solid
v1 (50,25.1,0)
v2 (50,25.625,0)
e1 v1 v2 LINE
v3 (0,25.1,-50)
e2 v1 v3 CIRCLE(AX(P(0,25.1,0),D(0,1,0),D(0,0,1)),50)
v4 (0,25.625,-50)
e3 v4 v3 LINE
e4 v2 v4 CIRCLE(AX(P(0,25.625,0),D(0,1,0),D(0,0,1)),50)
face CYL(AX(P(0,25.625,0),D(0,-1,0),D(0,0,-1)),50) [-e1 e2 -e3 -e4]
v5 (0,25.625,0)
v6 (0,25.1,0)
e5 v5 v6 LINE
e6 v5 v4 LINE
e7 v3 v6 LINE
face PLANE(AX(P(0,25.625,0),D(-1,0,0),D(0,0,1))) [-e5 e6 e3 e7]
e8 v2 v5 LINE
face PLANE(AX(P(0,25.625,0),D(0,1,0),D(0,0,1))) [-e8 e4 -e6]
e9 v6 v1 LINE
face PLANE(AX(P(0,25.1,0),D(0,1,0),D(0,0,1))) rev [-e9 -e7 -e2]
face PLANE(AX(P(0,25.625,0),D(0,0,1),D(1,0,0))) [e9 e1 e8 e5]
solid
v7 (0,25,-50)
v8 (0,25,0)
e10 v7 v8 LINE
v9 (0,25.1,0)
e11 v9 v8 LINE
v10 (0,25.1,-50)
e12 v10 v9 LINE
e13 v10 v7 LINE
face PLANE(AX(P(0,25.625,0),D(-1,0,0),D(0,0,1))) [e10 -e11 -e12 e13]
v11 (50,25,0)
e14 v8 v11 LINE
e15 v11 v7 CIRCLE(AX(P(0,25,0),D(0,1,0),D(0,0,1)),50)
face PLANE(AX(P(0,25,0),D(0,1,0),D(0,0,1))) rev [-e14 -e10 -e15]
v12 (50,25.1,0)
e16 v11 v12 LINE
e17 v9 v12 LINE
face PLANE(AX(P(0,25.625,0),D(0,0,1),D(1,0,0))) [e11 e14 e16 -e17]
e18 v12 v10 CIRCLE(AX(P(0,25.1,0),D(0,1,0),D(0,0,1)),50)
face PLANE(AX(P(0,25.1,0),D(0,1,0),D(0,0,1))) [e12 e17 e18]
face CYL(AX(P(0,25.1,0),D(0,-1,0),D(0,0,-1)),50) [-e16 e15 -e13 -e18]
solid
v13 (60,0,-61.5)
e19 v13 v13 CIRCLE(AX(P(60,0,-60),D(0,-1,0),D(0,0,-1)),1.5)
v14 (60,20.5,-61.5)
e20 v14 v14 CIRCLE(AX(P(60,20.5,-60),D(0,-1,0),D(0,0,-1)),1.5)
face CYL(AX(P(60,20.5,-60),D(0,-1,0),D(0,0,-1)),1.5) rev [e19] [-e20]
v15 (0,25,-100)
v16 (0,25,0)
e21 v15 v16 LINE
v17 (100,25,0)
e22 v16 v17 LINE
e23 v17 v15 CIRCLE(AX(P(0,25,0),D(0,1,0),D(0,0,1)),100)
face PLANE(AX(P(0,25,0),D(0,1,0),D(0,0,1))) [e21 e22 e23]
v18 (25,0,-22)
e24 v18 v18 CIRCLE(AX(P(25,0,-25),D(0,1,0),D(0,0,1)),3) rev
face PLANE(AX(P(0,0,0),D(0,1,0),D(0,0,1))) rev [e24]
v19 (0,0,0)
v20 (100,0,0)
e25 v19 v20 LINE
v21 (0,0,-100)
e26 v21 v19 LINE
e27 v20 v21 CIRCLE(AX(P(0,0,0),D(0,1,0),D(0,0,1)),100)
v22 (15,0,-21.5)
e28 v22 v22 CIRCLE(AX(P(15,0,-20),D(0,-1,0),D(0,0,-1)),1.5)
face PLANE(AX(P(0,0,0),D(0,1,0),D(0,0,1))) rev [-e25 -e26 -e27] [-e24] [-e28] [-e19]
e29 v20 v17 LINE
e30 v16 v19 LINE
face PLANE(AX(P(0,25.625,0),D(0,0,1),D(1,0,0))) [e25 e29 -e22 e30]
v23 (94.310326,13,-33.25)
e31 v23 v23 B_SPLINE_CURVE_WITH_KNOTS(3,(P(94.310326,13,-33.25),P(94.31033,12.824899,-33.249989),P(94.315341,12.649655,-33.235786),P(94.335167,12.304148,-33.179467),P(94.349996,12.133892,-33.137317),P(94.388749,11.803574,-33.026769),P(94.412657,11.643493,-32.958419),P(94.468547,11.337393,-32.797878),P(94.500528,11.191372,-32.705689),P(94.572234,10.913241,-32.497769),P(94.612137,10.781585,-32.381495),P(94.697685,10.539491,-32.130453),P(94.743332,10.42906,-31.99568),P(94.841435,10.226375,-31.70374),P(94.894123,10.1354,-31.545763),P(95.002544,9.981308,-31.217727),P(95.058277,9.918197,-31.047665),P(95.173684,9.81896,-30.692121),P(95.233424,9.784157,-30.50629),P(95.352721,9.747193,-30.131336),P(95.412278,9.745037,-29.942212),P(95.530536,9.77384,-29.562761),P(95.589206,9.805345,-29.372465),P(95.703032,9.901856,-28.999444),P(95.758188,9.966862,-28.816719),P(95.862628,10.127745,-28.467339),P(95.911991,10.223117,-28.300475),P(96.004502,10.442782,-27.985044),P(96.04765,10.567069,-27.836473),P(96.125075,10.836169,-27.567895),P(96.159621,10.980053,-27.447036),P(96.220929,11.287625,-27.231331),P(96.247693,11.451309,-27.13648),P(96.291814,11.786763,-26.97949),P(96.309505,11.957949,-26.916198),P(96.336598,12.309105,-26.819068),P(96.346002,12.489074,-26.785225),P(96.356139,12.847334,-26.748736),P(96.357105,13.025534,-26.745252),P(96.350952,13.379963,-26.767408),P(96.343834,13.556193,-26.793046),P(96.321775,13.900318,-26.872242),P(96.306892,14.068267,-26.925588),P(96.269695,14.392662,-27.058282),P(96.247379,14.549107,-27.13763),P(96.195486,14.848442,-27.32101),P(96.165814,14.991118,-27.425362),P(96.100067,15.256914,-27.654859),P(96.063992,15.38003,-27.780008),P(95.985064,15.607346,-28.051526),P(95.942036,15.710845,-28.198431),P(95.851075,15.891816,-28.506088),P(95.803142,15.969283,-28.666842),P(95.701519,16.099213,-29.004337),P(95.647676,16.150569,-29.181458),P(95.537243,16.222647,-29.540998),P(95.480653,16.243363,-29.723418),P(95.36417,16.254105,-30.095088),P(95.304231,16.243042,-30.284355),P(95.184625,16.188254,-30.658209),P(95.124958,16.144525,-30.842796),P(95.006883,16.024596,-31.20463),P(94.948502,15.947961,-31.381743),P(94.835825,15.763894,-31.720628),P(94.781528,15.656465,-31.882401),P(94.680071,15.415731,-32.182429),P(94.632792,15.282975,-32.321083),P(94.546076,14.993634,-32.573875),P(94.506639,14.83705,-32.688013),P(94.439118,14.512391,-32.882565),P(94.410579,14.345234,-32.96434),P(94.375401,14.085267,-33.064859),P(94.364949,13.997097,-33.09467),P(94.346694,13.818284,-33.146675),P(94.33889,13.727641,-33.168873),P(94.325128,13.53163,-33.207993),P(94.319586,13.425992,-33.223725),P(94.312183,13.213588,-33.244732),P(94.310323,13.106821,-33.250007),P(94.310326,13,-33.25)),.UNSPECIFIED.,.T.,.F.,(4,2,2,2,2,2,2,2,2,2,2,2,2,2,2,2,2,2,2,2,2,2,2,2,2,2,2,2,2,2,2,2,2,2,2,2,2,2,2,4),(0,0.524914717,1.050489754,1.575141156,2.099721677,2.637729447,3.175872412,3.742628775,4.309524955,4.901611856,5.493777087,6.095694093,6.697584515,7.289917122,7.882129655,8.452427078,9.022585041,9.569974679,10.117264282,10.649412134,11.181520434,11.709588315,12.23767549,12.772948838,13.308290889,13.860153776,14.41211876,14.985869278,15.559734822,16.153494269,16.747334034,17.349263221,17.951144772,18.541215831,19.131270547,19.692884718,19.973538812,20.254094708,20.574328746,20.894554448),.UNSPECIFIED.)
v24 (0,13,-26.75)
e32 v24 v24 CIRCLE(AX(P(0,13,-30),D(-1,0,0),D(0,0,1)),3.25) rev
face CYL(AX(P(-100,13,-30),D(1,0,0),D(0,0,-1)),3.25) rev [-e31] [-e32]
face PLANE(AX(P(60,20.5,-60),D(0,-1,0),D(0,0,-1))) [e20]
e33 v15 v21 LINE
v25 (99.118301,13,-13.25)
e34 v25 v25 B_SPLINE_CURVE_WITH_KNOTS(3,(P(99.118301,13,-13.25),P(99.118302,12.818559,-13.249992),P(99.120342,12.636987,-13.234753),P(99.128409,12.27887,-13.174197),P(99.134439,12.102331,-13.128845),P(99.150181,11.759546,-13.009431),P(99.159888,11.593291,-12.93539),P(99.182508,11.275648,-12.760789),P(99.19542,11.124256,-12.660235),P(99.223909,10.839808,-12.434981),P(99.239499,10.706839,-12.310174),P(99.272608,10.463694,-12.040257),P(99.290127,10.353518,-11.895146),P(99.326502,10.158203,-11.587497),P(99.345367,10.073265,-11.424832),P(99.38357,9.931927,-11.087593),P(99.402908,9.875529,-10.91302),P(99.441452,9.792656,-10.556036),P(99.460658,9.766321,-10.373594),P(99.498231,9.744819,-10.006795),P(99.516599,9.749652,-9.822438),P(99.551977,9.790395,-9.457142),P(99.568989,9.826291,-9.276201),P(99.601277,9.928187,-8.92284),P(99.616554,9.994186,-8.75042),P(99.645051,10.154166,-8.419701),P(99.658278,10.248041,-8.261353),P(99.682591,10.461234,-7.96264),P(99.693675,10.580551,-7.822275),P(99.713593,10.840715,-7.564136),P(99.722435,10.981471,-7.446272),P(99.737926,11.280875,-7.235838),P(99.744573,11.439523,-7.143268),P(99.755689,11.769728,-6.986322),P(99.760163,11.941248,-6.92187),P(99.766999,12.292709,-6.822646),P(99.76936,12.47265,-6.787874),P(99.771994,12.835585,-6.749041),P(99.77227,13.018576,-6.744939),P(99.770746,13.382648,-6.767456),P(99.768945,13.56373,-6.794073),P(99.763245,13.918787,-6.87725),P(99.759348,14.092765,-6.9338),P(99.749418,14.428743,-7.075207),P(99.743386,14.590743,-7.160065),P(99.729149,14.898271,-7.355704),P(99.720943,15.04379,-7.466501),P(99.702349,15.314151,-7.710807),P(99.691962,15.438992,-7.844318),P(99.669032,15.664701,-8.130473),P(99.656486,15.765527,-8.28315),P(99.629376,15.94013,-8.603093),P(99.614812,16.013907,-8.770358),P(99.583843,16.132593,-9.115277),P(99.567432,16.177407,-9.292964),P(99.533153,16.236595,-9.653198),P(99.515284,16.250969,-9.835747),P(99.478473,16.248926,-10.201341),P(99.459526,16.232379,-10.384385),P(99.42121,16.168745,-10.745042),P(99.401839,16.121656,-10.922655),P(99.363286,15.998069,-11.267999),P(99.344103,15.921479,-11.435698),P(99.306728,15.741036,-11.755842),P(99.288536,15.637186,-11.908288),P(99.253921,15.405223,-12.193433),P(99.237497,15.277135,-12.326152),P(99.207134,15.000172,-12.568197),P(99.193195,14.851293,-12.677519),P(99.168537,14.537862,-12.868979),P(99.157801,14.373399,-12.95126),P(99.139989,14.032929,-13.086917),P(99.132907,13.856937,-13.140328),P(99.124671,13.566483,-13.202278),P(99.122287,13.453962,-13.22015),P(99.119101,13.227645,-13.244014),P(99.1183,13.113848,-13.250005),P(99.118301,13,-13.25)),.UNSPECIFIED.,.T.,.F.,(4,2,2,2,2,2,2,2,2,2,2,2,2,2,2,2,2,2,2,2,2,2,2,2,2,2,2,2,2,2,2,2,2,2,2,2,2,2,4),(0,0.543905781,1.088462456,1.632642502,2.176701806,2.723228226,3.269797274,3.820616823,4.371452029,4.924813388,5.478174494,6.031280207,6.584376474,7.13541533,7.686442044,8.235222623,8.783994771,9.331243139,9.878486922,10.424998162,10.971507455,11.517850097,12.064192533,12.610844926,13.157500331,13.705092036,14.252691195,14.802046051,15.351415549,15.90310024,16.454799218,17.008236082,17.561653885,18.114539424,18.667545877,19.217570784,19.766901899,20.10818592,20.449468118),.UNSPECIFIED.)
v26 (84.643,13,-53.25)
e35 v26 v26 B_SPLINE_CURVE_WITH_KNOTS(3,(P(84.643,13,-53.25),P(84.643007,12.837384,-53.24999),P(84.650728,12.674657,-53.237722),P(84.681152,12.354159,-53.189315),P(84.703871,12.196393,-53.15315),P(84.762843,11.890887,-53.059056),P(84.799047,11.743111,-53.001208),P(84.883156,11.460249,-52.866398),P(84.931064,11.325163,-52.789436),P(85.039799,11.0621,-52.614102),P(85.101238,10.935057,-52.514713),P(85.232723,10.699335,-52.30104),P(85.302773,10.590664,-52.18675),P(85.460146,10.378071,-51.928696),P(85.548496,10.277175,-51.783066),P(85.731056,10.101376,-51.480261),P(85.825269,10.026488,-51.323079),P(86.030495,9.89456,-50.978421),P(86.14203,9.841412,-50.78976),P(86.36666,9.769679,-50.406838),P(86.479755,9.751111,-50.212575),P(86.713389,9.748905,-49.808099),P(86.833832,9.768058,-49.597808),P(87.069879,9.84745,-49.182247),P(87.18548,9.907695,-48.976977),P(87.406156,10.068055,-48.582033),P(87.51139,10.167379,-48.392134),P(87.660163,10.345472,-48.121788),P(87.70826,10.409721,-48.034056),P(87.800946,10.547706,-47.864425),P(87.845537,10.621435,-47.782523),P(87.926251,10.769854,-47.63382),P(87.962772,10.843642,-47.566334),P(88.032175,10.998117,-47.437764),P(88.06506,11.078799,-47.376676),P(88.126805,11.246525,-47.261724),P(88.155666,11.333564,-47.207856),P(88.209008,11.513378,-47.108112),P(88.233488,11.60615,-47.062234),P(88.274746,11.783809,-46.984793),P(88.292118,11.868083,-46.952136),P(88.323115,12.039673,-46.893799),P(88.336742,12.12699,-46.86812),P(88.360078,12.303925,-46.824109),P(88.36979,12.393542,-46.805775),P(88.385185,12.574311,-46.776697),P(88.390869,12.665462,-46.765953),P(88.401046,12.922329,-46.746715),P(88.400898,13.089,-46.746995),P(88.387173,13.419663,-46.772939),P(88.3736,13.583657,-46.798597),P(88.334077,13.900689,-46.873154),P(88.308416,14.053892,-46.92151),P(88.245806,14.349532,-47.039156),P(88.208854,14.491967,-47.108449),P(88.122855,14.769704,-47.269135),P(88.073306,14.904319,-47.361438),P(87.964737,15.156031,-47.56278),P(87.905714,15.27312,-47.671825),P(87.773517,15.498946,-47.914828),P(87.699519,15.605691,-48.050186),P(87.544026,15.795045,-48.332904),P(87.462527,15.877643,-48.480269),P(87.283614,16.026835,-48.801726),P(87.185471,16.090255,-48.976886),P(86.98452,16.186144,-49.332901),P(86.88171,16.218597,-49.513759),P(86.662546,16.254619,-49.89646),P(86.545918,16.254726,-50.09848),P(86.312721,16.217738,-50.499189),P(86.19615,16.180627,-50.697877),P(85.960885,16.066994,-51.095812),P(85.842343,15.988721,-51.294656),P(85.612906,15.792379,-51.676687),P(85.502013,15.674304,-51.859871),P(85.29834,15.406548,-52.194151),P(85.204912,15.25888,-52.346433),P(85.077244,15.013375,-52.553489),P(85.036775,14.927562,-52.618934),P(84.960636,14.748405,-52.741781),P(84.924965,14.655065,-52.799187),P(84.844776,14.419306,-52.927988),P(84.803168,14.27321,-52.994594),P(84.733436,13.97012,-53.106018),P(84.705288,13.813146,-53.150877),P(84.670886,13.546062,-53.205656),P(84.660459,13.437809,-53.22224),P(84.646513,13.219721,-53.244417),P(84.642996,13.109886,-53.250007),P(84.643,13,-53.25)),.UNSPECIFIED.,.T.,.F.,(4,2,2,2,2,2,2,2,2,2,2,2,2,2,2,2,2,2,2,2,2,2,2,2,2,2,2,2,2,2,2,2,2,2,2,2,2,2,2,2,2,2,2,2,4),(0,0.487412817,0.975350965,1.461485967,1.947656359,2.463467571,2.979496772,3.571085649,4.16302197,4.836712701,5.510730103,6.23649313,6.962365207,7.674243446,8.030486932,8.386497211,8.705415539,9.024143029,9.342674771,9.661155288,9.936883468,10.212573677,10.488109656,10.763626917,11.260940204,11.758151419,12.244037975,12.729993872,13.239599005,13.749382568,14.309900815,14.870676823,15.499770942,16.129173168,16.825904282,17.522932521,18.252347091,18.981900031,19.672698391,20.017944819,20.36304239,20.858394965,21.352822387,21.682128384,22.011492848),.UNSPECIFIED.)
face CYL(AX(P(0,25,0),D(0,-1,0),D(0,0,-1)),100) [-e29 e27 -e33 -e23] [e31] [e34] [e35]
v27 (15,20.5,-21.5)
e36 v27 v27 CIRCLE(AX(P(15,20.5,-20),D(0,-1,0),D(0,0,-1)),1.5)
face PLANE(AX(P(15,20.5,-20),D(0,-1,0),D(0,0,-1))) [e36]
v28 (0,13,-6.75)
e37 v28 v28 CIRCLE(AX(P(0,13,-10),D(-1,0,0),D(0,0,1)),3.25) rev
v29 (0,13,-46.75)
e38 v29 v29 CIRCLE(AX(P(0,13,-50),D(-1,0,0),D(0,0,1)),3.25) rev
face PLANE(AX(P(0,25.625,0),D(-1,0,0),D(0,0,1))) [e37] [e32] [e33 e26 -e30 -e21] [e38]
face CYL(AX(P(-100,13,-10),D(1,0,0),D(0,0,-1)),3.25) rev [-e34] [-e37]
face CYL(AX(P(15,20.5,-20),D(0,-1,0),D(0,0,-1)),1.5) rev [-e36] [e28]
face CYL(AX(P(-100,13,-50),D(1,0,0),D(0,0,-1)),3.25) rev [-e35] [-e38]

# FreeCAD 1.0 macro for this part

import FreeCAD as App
import Part
import Sketcher

V = App.Vector
Q = App.Units.Quantity

doc = App.newDocument("Part")
body = doc.addObject("PartDesign::Body", "Body")

# Sketch on XZ plane
sketch1 = body.newObject("Sketcher::SketchObject", "Sketch")
sketch1.AttachmentSupport = (doc.getObject("XZ_Plane"), [""])
sketch1.MapMode = "FlatFace"
sketch1.addGeometry(Part.Circle(V(0, 0, 0), V(0, 0, 1), 100), False)
sketch1.addConstraint([
    Sketcher.Constraint("Coincident", 0, 3, -1, 1),
    Sketcher.Constraint("Diameter", 0, Q("200 mm")),
])
pad1 = body.newObject("PartDesign::Pad", "Pad")
pad1.Profile = sketch1
pad1.Length = 25
pad1.Reversed = True

# Sketch on YZ plane
sketch2 = body.newObject("Sketcher::SketchObject", "Sketch001")
sketch2.AttachmentSupport = (doc.getObject("YZ_Plane"), [""])
sketch2.MapMode = "FlatFace"
sketch2.addGeometry([
    Part.Circle(V(13, -10, 0), V(0, 0, 1), 3.2),
    Part.Circle(V(13, -30, 0), V(0, 0, 1), 3.2),
    Part.Circle(V(13, -50, 0), V(0, 0, 1), 3.2),
], False)
sketch2.addConstraint([
    Sketcher.Constraint("Equal", 0, 1),
    Sketcher.Constraint("Equal", 1, 2),
    Sketcher.Constraint("Vertical", 0, 3, 1, 3),
    Sketcher.Constraint("Vertical", 1, 3, 2, 3),
    Sketcher.Constraint("Diameter", 0, Q("6.5 mm")),
    Sketcher.Constraint("DistanceX", -1, 1, 0, 3, Q("13 mm")),
    Sketcher.Constraint("DistanceY", 0, 3, -1, 1, Q("10 mm")),
    Sketcher.Constraint("DistanceY", 1, 3, -1, 1, Q("30 mm")),
    Sketcher.Constraint("DistanceY", 2, 3, -1, 1, Q("50 mm")),
])
pocket1 = body.newObject("PartDesign::Pocket", "Pocket")
pocket1.Profile = sketch2
pocket1.Type = "ThroughAll"
pocket1.Midplane = True

# Sketch on XZ plane
sketch3 = body.newObject("Sketcher::SketchObject", "Sketch002")
sketch3.AttachmentSupport = (doc.getObject("XZ_Plane"), [""])
sketch3.MapMode = "FlatFace"
sketch3.addGeometry([
    Part.Circle(V(15, -20, 0), V(0, 0, 1), 1.5),
    Part.Circle(V(60, -60, 0), V(0, 0, 1), 1.5),
], False)
sketch3.addConstraint([
    Sketcher.Constraint("Equal", 0, 1),
    Sketcher.Constraint("Diameter", 0, Q("3 mm")),
    Sketcher.Constraint("DistanceX", -1, 1, 0, 3, Q("15 mm")),
    Sketcher.Constraint("DistanceY", 0, 3, -1, 1, Q("20 mm")),
    Sketcher.Constraint("DistanceX", -1, 1, 1, 3, Q("60 mm")),
    Sketcher.Constraint("DistanceY", 1, 3, -1, 1, Q("60 mm")),
])
pocket2 = body.newObject("PartDesign::Pocket", "Pocket001")
pocket2.Profile = sketch3
pocket2.Length = 20.5
body2 = doc.addObject("PartDesign::Body", "Body001")

# Sketch on XZ plane
sketch4 = body2.newObject("Sketcher::SketchObject", "Sketch003")
sketch4.AttachmentSupport = (doc.getObject("XZ_Plane001"), [""])
sketch4.MapMode = "FlatFace"
sketch4.AttachmentOffset = App.Placement(V(0, 0, -25), App.Rotation())
sketch4.addGeometry(Part.Circle(V(0, 0, 0), V(0, 0, 1), 50), False)
sketch4.addConstraint([
    Sketcher.Constraint("Coincident", 0, 3, -1, 1),
    Sketcher.Constraint("Diameter", 0, Q("100 mm")),
])
pad2 = body2.newObject("PartDesign::Pad", "Pad001")
pad2.Profile = sketch4
pad2.Length = 0.1
pad2.Reversed = True
body3 = doc.addObject("PartDesign::Body", "Body002")

# Sketch on XZ plane
sketch5 = body3.newObject("Sketcher::SketchObject", "Sketch004")
sketch5.AttachmentSupport = (doc.getObject("XZ_Plane002"), [""])
sketch5.MapMode = "FlatFace"
sketch5.AttachmentOffset = App.Placement(V(0, 0, -25.1), App.Rotation())
sketch5.addGeometry(Part.Circle(V(0, 0, 0), V(0, 0, 1), 50), False)
sketch5.addConstraint([
    Sketcher.Constraint("Coincident", 0, 3, -1, 1),
    Sketcher.Constraint("Diameter", 0, Q("100 mm")),
])
pad3 = body3.newObject("PartDesign::Pad", "Pad002")
pad3.Profile = sketch5
pad3.Length = 0.525
pad3.Reversed = True
body4 = doc.addObject("PartDesign::Body", "Body003")

# Sketch on XZ plane
sketch6 = body4.newObject("Sketcher::SketchObject", "Sketch005")
sketch6.AttachmentSupport = (doc.getObject("XZ_Plane003"), [""])
sketch6.MapMode = "FlatFace"
sketch6.addGeometry([
    Part.LineSegment(V(-129, 129, 0), V(-129, -129, 0)),  # 0
    Part.LineSegment(V(-129, -129, 0), V(129, -129, 0)),  # 1
    Part.LineSegment(V(129, -129, 0), V(129, 129, 0)),  # 2
    Part.LineSegment(V(129, 129, 0), V(-129, 129, 0)),  # 3
    Part.LineSegment(V(123, -114, 0), V(0, -114, 0)),  # 4
    Part.LineSegment(V(0, -114, 0), V(0, 0, 0)),  # 5
    Part.LineSegment(V(0, 0, 0), V(123, 0, 0)),  # 6
    Part.LineSegment(V(123, 0, 0), V(123, -114, 0)),  # 7
], False)
sketch6.addConstraint([
    Sketcher.Constraint("Coincident", 0, 2, 1, 1),
    Sketcher.Constraint("Coincident", 1, 2, 2, 1),
    Sketcher.Constraint("Coincident", 2, 2, 3, 1),
    Sketcher.Constraint("Coincident", 3, 2, 0, 1),
    Sketcher.Constraint("Coincident", 4, 2, 5, 1),
    Sketcher.Constraint("Coincident", 5, 2, 6, 1),
    Sketcher.Constraint("Coincident", 6, 2, 7, 1),
    Sketcher.Constraint("Coincident", 7, 2, 4, 1),
    Sketcher.Constraint("Vertical", 0),
    Sketcher.Constraint("Horizontal", 1),
    Sketcher.Constraint("Vertical", 2),
    Sketcher.Constraint("Horizontal", 3),
    Sketcher.Constraint("Horizontal", 4),
    Sketcher.Constraint("Vertical", 5),
    Sketcher.Constraint("Horizontal", 6),
    Sketcher.Constraint("Vertical", 7),
    Sketcher.Constraint("Coincident", 5, 2, -1, 1),
    Sketcher.Constraint("Symmetric", 0, 2, 2, 2, -1, 1),
    Sketcher.Constraint("Equal", 3, 0),
    Sketcher.Constraint("DistanceX", 1, 1, 1, 2, Q("258.8 mm")),
    Sketcher.Constraint("DistanceX", 4, 2, 4, 1, Q("122.6718 mm")),
    Sketcher.Constraint("DistanceY", 5, 1, 5, 2, Q("113.648229 mm")),
])
pad4 = body4.newObject("PartDesign::Pad", "Pad003")
pad4.Profile = sketch6
pad4.Type = "TwoLengths"
pad4.Length = 144.724183
pad4.Length2 = 144.724183
doc.recompute()

body5 = doc.addObject("PartDesign::Body", "Body004")
body5.BaseFeature = body4
boolean = body.newObject("PartDesign::Boolean", "Boolean")
boolean.Type = "Cut"
boolean.addObjects([body5])
doc.recompute()

body6 = doc.addObject("PartDesign::Body", "Body005")
body6.BaseFeature = body4
boolean2 = body2.newObject("PartDesign::Boolean", "Boolean001")
boolean2.Type = "Cut"
boolean2.addObjects([body6])
doc.recompute()

boolean3 = body3.newObject("PartDesign::Boolean", "Boolean002")
boolean3.Type = "Cut"
boolean3.addObjects([body4])

doc.recompute()
